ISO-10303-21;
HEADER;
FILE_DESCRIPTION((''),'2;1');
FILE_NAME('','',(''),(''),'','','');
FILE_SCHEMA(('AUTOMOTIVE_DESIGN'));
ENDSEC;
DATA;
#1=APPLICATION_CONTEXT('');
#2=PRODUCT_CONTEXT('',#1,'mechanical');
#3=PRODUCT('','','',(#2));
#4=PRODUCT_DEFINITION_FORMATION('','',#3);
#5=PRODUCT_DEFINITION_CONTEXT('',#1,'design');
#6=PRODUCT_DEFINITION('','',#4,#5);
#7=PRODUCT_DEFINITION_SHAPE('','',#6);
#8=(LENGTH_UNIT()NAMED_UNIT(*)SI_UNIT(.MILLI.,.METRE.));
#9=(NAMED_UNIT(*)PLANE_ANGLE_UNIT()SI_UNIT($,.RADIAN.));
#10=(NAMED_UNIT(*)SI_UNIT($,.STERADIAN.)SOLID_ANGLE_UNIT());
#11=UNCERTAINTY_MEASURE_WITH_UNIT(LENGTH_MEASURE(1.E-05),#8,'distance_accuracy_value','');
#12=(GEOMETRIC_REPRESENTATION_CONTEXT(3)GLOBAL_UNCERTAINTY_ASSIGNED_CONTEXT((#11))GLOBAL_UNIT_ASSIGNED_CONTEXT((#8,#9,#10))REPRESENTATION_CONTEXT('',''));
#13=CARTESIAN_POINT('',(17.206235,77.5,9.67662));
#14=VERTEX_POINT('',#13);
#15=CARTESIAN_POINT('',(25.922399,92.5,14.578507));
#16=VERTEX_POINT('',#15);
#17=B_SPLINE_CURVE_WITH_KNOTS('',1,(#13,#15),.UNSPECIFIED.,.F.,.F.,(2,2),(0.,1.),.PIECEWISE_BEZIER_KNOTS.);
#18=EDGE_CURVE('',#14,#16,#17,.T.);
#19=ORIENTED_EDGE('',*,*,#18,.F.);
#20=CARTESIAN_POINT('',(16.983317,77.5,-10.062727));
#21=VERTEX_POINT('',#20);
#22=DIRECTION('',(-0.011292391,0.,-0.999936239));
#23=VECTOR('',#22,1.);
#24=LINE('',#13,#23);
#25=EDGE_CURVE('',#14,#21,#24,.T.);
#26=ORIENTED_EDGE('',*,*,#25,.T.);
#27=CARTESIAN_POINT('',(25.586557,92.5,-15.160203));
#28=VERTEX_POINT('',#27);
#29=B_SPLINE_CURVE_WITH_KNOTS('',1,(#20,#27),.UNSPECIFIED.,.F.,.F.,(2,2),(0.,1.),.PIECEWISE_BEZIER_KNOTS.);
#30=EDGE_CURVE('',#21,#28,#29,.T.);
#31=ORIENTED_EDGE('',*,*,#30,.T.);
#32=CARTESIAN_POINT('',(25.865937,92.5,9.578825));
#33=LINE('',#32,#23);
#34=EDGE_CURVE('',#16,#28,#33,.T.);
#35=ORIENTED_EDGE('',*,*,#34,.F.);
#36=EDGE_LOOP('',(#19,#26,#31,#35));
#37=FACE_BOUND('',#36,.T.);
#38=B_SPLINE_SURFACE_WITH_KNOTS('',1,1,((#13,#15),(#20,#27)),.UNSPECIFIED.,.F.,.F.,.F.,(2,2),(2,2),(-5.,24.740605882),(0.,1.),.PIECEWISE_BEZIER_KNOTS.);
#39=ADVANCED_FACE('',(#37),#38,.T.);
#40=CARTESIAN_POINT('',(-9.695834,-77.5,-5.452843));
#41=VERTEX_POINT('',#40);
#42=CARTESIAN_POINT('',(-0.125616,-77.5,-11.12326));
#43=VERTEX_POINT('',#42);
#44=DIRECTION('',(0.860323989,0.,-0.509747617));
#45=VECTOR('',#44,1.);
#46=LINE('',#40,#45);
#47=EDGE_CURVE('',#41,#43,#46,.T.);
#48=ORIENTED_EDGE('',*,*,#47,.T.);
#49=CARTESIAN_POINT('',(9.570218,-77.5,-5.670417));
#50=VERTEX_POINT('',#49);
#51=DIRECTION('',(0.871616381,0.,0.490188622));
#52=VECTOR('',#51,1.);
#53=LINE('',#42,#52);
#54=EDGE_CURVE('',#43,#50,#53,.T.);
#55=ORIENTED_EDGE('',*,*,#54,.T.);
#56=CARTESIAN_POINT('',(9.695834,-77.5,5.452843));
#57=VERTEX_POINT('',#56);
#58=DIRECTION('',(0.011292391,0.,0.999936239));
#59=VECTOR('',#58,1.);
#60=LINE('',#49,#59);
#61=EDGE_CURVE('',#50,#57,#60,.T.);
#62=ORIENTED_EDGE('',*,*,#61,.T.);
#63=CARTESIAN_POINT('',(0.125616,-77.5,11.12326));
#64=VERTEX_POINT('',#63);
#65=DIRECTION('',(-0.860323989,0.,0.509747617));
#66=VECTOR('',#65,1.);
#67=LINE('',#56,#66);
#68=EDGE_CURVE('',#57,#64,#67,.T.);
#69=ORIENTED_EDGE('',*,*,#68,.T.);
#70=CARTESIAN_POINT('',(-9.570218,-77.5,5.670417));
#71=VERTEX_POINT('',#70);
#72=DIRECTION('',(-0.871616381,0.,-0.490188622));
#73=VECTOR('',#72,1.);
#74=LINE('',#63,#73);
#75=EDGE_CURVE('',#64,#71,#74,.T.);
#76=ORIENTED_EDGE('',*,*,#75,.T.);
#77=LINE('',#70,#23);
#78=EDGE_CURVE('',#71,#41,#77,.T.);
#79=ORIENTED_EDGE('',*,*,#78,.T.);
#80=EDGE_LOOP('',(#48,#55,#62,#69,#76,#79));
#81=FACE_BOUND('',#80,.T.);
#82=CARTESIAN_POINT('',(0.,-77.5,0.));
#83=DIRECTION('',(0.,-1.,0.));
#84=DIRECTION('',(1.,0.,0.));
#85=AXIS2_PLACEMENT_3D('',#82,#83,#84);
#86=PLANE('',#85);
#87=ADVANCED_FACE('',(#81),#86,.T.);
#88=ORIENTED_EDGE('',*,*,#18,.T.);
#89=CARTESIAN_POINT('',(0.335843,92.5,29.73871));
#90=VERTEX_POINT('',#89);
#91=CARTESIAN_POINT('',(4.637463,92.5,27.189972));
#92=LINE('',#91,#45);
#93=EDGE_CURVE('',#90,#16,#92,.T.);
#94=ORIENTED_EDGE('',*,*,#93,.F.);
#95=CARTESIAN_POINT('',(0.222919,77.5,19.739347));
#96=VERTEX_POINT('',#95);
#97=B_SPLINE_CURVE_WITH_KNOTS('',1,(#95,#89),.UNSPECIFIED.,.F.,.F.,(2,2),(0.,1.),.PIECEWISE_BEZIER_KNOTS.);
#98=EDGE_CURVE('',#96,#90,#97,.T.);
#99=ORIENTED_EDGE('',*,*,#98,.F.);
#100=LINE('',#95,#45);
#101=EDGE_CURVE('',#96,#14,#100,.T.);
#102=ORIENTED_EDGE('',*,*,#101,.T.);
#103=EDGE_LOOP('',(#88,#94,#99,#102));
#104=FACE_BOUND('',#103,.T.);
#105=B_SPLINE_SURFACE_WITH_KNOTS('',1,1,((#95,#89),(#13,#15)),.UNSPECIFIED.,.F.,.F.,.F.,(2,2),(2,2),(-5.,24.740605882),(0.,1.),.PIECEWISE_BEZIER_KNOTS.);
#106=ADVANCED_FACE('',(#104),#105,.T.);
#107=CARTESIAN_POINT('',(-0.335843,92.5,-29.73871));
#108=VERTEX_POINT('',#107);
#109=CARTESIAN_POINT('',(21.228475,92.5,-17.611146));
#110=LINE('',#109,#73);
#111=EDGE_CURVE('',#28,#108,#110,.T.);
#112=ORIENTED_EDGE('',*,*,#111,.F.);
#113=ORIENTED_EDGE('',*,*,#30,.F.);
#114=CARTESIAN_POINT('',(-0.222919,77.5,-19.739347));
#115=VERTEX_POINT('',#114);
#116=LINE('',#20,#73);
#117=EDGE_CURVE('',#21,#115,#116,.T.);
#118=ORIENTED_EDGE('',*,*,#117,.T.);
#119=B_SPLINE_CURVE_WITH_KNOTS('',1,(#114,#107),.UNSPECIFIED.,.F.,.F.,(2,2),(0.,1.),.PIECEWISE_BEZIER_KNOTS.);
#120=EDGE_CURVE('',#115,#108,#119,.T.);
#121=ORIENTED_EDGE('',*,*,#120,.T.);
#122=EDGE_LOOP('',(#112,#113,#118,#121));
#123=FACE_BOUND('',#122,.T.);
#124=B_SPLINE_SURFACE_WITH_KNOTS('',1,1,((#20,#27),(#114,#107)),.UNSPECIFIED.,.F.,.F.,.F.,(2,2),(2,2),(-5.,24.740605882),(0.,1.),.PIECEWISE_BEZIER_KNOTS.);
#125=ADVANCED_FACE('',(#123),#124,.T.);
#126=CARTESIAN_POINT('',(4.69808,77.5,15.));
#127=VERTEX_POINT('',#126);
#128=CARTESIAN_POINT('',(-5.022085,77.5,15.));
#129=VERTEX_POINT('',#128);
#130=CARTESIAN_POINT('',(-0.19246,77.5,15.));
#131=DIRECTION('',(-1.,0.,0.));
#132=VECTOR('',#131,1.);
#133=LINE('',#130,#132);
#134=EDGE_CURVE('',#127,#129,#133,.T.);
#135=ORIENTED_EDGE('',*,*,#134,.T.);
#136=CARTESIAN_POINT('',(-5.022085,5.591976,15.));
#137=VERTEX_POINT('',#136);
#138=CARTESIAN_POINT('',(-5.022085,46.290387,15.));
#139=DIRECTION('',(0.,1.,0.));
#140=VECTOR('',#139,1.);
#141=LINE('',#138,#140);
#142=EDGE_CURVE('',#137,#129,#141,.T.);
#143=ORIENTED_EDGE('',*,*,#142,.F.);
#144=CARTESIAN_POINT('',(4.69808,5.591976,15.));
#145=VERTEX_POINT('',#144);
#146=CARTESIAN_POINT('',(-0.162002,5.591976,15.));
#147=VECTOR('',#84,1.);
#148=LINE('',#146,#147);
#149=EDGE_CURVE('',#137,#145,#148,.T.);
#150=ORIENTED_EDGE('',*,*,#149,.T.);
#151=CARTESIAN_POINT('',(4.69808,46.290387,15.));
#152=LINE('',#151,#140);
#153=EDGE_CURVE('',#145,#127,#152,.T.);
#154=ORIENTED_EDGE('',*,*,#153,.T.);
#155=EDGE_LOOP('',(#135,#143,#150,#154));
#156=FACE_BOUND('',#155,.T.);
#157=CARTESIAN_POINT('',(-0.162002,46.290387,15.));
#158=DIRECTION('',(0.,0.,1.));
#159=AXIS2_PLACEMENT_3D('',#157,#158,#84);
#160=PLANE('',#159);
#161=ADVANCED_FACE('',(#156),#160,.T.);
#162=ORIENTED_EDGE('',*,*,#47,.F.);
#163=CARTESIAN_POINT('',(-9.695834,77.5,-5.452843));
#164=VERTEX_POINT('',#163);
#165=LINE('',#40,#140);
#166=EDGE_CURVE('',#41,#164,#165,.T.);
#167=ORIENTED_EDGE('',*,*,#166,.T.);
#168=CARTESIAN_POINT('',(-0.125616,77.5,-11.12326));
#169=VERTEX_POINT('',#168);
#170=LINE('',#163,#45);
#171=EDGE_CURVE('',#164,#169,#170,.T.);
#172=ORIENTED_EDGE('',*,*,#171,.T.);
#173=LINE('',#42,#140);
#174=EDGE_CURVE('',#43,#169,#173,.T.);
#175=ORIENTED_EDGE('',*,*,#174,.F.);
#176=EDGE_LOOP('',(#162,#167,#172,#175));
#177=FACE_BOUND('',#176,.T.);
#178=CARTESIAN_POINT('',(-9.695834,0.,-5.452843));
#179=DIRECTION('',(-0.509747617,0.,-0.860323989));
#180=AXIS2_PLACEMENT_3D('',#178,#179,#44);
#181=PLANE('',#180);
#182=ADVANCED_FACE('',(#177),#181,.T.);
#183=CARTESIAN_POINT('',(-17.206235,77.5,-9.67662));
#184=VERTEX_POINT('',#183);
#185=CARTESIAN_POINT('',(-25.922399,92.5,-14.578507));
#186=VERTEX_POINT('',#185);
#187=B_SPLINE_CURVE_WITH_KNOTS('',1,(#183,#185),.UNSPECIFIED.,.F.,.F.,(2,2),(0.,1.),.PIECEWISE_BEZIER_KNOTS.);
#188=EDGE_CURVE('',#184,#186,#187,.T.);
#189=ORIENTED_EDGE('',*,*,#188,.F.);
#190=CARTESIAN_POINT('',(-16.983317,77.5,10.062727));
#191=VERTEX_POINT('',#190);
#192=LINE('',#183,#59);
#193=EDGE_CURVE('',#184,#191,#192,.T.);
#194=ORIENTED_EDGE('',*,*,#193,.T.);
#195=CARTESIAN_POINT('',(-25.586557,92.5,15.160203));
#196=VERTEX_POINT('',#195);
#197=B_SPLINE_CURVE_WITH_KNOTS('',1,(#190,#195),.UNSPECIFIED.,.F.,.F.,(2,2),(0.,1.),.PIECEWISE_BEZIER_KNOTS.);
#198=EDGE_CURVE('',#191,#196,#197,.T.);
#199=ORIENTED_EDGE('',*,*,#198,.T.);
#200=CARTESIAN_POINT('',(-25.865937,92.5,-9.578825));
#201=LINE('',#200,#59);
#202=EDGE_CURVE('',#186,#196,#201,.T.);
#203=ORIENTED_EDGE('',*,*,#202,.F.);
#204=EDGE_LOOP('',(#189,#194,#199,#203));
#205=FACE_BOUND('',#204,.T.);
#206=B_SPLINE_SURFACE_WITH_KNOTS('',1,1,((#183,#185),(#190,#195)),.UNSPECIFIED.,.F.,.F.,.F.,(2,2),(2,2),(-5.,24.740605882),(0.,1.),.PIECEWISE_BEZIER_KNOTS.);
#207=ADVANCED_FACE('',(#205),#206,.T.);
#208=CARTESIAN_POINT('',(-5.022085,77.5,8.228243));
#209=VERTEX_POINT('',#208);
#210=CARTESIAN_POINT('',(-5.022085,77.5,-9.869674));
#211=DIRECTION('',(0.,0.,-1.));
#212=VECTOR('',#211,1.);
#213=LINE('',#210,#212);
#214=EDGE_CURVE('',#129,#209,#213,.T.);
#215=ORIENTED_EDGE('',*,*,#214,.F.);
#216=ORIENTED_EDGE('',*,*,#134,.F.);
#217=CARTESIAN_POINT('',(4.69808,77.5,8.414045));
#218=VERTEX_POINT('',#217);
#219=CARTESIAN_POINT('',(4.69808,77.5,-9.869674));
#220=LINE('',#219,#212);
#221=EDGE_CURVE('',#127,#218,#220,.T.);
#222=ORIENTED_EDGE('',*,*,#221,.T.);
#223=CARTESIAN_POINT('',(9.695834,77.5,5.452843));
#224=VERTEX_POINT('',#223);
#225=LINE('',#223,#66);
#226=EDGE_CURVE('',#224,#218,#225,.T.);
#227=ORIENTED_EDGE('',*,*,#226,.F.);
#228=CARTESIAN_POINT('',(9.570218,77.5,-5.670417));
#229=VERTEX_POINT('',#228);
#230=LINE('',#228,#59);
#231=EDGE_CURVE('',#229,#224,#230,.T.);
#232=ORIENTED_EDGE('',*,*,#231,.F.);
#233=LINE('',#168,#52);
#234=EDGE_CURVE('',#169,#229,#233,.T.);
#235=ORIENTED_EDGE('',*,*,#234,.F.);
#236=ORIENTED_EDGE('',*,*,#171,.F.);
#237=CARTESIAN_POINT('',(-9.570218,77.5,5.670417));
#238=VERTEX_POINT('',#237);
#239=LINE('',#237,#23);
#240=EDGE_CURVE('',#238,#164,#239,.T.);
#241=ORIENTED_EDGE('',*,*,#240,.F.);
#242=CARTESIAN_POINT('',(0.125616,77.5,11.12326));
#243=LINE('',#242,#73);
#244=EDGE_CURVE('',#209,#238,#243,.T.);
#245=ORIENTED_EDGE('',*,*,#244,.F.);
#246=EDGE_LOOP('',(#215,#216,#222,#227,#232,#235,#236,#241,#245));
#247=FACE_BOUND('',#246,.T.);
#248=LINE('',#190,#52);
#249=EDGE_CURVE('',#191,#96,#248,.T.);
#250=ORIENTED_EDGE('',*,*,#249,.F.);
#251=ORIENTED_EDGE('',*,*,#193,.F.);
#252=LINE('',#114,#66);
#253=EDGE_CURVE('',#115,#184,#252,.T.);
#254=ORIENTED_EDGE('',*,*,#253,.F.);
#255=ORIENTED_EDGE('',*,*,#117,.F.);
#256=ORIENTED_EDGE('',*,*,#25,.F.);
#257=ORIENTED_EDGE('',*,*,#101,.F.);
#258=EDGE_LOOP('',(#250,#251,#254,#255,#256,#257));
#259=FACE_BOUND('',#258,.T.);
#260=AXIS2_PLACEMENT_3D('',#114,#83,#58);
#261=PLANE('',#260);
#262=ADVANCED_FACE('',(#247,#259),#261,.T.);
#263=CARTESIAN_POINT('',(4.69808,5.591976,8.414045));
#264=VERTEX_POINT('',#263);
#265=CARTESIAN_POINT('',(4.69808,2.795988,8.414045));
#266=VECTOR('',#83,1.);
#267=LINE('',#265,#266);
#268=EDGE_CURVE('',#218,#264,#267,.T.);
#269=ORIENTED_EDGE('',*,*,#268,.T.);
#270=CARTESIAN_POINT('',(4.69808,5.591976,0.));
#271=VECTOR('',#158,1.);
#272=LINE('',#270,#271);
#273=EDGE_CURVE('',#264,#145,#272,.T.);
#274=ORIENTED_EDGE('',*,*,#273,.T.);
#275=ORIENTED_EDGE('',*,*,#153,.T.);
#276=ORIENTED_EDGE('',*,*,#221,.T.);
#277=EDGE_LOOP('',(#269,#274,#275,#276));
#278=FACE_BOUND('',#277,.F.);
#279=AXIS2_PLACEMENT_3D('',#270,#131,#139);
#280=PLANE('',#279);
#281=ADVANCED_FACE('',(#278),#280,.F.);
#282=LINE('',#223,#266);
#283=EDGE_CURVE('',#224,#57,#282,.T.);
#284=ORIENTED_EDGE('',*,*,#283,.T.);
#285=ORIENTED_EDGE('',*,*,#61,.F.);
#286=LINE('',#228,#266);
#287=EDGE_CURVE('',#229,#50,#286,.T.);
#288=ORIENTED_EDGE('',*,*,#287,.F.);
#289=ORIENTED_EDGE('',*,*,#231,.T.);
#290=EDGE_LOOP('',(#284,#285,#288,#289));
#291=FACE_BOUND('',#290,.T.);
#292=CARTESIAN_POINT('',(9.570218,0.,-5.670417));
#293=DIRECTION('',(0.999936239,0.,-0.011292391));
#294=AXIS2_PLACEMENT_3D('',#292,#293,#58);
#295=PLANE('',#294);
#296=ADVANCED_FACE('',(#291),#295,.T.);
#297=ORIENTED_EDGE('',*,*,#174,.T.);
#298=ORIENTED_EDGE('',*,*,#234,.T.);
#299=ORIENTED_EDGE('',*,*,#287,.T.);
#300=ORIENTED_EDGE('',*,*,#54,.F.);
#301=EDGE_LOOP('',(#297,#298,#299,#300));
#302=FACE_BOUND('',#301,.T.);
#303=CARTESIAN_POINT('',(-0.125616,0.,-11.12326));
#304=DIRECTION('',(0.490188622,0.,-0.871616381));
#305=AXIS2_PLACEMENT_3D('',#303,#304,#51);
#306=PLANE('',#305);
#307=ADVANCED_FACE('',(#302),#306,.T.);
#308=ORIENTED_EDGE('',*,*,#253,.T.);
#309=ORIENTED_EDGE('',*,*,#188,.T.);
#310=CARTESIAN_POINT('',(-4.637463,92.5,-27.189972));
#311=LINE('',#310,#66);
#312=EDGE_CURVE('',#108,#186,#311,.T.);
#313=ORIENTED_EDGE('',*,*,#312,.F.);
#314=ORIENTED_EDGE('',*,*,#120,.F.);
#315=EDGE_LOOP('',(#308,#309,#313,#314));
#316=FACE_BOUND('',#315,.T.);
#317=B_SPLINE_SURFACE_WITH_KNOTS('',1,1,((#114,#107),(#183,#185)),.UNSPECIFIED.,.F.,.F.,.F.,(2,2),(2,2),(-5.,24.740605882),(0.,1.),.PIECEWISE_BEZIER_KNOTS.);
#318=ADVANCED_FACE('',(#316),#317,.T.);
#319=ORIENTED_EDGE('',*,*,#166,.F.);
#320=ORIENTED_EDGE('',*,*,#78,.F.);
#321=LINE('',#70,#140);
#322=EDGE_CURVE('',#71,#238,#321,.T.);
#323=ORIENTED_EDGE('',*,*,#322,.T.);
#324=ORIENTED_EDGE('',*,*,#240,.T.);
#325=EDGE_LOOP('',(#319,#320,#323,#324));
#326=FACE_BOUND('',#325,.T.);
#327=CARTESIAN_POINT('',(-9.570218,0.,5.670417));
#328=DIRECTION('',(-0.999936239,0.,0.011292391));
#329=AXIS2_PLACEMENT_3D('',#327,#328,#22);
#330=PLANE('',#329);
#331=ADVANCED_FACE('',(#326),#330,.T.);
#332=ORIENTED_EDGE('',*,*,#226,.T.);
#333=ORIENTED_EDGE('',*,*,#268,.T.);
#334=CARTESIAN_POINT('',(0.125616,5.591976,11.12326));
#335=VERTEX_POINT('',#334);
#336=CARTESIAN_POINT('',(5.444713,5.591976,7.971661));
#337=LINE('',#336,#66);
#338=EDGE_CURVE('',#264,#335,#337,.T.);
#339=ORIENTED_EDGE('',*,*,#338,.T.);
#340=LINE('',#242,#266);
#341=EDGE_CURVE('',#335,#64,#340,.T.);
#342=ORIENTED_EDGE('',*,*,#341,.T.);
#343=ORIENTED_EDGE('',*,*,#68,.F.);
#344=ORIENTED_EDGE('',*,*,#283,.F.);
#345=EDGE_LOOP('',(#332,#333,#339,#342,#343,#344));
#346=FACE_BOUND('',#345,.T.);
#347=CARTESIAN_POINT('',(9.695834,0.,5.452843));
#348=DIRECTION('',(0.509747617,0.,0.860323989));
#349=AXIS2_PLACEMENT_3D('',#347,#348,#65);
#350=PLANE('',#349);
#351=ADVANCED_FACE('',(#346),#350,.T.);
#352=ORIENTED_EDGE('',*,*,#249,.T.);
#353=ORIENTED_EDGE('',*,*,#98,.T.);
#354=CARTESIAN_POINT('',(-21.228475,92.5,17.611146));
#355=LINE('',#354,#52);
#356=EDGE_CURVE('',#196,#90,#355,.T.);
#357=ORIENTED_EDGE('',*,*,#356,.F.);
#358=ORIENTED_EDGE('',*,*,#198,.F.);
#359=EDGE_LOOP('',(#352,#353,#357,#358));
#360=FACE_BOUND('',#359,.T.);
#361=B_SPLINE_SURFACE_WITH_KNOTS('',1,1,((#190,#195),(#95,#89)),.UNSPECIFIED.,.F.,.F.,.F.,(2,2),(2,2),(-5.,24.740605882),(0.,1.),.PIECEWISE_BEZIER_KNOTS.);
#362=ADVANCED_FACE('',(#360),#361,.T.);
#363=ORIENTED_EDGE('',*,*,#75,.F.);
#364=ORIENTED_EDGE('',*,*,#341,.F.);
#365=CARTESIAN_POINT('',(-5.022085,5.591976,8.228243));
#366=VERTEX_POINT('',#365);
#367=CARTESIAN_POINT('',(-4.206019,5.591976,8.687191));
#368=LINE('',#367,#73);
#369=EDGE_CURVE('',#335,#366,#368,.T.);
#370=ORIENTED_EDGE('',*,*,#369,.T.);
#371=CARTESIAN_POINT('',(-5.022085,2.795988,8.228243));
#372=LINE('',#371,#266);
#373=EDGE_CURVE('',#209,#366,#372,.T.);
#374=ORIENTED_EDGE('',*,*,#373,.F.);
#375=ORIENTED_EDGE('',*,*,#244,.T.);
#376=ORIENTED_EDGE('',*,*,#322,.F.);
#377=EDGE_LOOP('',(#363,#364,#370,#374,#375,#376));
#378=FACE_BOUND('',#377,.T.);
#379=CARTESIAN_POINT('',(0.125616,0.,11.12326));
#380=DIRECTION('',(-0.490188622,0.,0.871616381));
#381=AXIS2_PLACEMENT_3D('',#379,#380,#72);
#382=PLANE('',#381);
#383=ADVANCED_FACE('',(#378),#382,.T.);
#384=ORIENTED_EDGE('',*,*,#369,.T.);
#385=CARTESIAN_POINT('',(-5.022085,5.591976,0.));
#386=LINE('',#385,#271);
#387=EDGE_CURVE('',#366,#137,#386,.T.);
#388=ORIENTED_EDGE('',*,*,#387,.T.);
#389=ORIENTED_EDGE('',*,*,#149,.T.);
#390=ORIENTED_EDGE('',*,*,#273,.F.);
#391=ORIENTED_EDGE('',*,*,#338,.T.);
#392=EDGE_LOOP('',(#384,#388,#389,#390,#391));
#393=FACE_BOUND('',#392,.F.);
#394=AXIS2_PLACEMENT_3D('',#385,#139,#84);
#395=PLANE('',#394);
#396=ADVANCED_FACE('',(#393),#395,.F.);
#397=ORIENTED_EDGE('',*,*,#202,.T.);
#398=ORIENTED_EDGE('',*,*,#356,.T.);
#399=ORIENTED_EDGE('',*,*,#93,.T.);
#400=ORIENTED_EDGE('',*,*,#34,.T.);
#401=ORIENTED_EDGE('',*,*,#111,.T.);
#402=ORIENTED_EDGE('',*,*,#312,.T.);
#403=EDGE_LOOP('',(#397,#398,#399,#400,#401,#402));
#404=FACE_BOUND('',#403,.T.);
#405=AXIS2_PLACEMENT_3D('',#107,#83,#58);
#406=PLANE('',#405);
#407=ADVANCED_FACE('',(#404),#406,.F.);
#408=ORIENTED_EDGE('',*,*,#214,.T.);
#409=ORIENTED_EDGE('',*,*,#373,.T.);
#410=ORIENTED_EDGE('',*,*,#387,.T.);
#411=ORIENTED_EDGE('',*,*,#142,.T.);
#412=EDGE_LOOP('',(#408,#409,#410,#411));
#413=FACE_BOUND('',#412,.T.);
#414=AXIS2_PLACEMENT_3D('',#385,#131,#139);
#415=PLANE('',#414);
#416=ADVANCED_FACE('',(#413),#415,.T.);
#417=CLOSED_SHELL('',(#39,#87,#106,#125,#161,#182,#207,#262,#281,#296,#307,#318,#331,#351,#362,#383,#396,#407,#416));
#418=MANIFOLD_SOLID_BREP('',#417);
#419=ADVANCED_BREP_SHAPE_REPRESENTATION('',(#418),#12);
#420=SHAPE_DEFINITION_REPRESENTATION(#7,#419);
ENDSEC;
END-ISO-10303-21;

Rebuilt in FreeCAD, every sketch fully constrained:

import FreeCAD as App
import Part
import Sketcher
Q = App.Units.Quantity


def add_polygon(sketch, points):
    """Adds a closed chain of lines whose ends are joined by coincident constraints."""
    first, n = sketch.GeometryCount, len(points)
    for a, b in zip(points, points[1:] + points[:1]):
        sketch.addGeometry(Part.LineSegment(App.Vector(*a, 0), App.Vector(*b, 0)), False)
    for i in range(n):
        sketch.addConstraint(Sketcher.Constraint("Coincident", first + i, 2, first + (i + 1) % n, 1))

doc = App.newDocument("Part")
params = doc.addObject("Spreadsheet::Sheet", "Params")
for row, (alias, value) in enumerate([
    ("pad1_length", "155 mm"),
    ("pad2_length", "15 mm"),
    ("pad2_taper", "30 deg"),
    ("pad3_length", "15 mm"),
], start=1):
    params.set(f"A{row}", alias)
    params.set(f"B{row}", "=" + value)
    params.setAlias(f"B{row}", alias)

body = doc.addObject("PartDesign::Body", "Body")

# Sketch on XZ plane
sketch1 = body.newObject("Sketcher::SketchObject", "Sketch")
sketch1.AttachmentSupport = (doc.getObject("XZ_Plane"), [""])
sketch1.MapMode = "FlatFace"
add_polygon(sketch1, [(0, -11), (10, -6), (10, 5), (0, 11), (-10, 6), (-10, -5)])  # lines 0-5
sketch1.addConstraint([
    Sketcher.Constraint("Symmetric", 0, 2, 3, 2, -1, 1),
    Sketcher.Constraint("Symmetric", 1, 2, 4, 2, -1, 1),
    Sketcher.Constraint("Symmetric", 2, 2, 5, 2, -1, 1),
    Sketcher.Constraint("Equal", 0, 1),
    Sketcher.Constraint("Equal", 1, 2),
    Sketcher.Constraint("DistanceX", 2, 2, 0, 2, Q("9.444602 mm")),
    Sketcher.Constraint("Distance", 0, Q("11.12397 mm")),
    Sketcher.Constraint("DistanceX", -1, 1, 0, 2, Q("9.570218 mm")),
    Sketcher.Constraint("DistanceY", -1, 1, 2, 2, Q("11.12326 mm")),
])
pad1 = body.newObject("PartDesign::Pad", "Pad")
pad1.Profile = sketch1
pad1.setExpression("Length", "Params.pad1_length")
pad1.Midplane = True

# Sketch on XZ plane
sketch2 = body.newObject("Sketcher::SketchObject", "Sketch001")
sketch2.AttachmentSupport = (doc.getObject("XZ_Plane"), [""])
sketch2.MapMode = "FlatFace"
sketch2.AttachmentOffset = App.Placement(App.Vector(0, 0, -77.5), App.Rotation())
add_polygon(sketch2, [(0, -20), (-17, -10), (-17, 10), (0, 20), (17, 10), (17, -10)])  # lines 0-5
sketch2.addConstraint([
    Sketcher.Constraint("Symmetric", 0, 2, 3, 2, -1, 1),
    Sketcher.Constraint("Symmetric", 1, 2, 4, 2, -1, 1),
    Sketcher.Constraint("Symmetric", 2, 2, 5, 2, -1, 1),
    Sketcher.Constraint("Equal", 0, 1),
    Sketcher.Constraint("Equal", 1, 2),
    Sketcher.Constraint("DistanceX", 2, 2, 4, 2, Q("16.760398 mm")),
    Sketcher.Constraint("DistanceY", 0, 2, -1, 1, Q("9.67662 mm")),
    Sketcher.Constraint("DistanceX", -1, 1, 2, 2, Q("0.222919 mm")),
    Sketcher.Constraint("DistanceX", 0, 2, 1, 2, Q("0.222919 mm")),
])
pad2 = body.newObject("PartDesign::Pad", "Pad001")
pad2.Profile = sketch2
pad2.setExpression("Length", "Params.pad2_length")
pad2.Reversed = True
pad2.setExpression("TaperAngle", "Params.pad2_taper")

# Sketch on XY plane
sketch3 = body.newObject("Sketcher::SketchObject", "Sketch002")
sketch3.AttachmentSupport = (doc.getObject("XY_Plane"), [""])
sketch3.MapMode = "FlatFace"
add_polygon(sketch3, [(-5, 87), (-5, 6), (5, 6), (5, 87)])  # lines 0-3
sketch3.addConstraint([
    Sketcher.Constraint("Vertical", 0),
    Sketcher.Constraint("Horizontal", 1),
    Sketcher.Constraint("Vertical", 2),
    Sketcher.Constraint("Horizontal", 3),
    Sketcher.Constraint("DistanceY", -1, 1, 2, 2, Q("86.988799 mm")),
    Sketcher.Constraint("DistanceX", 1, 1, 1, 2, Q("9.720165 mm")),
    Sketcher.Constraint("DistanceY", 0, 2, 0, 1, Q("81.396824 mm")),
    Sketcher.Constraint("DistanceX", -1, 1, 1, 2, Q("4.69808 mm")),
])
pad3 = body.newObject("PartDesign::Pad", "Pad002")
pad3.Profile = sketch3
pad3.setExpression("Length", "Params.pad3_length")

doc.recompute()
